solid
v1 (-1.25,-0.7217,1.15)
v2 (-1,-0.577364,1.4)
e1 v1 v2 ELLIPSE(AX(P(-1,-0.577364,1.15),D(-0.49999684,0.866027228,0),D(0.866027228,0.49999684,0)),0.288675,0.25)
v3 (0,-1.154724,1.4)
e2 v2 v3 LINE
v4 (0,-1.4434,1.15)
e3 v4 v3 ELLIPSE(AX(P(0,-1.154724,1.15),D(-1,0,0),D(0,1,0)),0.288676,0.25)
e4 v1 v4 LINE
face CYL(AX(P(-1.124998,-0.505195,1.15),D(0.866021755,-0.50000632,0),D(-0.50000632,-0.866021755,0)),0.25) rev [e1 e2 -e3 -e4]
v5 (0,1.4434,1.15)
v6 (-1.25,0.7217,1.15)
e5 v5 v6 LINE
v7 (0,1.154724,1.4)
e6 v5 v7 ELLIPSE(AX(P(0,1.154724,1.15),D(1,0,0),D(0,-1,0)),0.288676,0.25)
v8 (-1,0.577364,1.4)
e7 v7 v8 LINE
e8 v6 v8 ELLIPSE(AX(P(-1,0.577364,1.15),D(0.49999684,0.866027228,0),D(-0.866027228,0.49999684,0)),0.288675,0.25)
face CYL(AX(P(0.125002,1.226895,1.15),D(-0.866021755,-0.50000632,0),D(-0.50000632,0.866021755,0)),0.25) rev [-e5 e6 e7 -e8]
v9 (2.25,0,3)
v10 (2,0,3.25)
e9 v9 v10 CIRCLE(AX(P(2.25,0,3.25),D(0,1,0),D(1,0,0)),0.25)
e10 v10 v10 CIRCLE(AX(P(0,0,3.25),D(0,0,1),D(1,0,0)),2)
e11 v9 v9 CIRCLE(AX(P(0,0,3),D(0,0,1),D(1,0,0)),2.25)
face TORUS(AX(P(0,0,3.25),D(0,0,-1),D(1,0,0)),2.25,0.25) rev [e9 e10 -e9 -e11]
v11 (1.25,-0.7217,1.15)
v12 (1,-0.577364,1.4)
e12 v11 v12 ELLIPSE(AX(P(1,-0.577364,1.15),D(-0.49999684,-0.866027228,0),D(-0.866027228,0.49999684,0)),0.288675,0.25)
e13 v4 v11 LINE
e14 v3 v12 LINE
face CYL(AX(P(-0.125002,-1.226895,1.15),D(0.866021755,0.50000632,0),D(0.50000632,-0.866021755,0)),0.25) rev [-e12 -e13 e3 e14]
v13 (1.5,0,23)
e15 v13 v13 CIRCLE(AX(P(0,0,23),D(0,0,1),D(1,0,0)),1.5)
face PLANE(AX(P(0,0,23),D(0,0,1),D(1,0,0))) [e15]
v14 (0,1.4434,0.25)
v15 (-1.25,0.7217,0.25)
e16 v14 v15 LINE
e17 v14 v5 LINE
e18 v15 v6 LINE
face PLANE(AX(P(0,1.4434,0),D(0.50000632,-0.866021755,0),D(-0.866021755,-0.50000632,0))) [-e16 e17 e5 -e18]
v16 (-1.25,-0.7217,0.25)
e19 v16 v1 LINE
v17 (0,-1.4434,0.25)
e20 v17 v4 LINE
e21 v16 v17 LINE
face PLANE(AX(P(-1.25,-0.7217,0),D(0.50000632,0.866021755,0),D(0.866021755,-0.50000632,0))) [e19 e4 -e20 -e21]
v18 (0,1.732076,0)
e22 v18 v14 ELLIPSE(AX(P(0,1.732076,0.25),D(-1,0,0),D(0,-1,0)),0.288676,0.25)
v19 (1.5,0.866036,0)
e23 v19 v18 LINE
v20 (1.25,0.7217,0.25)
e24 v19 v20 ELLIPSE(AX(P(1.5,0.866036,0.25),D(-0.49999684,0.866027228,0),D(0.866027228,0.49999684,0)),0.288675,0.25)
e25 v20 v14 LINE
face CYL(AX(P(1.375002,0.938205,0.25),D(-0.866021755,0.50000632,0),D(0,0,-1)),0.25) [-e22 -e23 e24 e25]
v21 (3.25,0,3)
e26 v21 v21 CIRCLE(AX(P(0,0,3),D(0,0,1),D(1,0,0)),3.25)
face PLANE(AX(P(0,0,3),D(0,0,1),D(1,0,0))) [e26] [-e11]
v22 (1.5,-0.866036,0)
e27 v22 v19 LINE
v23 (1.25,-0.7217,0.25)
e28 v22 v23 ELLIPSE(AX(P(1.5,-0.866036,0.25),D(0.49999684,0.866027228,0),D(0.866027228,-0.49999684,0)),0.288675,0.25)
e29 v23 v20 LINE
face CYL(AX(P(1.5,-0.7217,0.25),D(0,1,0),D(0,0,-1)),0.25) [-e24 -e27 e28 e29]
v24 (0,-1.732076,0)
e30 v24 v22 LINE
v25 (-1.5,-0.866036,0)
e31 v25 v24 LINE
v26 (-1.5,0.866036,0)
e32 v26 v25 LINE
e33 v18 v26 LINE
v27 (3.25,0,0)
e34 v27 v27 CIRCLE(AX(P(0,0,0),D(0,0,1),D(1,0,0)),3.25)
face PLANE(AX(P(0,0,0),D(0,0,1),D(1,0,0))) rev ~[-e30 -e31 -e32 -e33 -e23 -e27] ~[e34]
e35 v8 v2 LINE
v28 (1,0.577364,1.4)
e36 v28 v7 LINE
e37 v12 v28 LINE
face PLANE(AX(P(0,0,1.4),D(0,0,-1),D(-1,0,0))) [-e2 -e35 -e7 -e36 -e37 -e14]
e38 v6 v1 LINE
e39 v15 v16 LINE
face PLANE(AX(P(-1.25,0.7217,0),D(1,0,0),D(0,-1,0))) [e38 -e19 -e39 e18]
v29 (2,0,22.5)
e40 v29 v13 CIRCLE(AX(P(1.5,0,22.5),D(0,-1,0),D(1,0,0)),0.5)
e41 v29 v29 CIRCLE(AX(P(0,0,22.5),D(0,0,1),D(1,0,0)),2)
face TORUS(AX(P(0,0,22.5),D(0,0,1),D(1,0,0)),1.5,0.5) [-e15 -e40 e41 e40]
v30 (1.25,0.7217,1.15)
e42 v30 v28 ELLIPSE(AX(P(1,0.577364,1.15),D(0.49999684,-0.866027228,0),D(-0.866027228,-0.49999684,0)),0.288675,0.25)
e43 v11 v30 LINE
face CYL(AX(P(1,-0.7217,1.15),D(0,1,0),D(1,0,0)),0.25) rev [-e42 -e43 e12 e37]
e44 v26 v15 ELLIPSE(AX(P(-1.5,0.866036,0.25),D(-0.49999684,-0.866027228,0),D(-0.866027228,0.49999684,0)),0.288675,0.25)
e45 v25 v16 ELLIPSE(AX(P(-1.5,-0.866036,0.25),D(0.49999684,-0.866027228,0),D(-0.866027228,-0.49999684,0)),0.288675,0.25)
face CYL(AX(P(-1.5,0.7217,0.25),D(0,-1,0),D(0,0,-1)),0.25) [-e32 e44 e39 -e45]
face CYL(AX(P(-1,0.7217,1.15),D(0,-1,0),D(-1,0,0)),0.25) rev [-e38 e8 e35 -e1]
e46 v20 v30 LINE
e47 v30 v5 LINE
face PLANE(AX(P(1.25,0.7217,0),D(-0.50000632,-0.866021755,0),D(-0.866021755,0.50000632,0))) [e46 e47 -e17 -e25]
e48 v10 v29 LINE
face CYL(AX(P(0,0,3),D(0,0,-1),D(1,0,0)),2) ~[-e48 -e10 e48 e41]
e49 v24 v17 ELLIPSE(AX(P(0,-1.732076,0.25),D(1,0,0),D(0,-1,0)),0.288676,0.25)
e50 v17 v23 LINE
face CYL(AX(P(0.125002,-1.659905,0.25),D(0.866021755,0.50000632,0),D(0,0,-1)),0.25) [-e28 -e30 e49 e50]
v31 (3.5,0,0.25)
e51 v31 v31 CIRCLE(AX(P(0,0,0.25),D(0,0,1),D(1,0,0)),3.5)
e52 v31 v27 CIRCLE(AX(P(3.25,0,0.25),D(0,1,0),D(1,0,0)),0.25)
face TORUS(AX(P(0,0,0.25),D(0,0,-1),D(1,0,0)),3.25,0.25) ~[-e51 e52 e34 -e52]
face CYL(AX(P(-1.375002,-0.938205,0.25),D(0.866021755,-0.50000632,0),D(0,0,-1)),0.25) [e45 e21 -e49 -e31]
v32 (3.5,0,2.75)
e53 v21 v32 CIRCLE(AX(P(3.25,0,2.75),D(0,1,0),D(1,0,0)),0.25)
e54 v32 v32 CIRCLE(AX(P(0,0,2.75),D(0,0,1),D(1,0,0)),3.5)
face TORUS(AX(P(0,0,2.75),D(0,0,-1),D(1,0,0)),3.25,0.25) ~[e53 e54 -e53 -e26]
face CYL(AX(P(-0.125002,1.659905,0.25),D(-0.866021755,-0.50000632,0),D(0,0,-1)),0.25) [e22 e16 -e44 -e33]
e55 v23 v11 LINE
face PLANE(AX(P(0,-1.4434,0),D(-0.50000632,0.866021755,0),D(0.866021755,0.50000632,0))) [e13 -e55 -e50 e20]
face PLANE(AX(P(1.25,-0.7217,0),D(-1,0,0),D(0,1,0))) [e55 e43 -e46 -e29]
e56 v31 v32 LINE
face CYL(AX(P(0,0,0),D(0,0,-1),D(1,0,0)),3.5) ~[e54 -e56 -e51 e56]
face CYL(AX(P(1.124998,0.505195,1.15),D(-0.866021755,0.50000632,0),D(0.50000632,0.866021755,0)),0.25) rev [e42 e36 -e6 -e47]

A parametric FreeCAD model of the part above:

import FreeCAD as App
import Part
import Sketcher
from FreeCAD import Vector
Q = App.Units.Quantity


def edges_at(feature, points):
    """Names of the edges that pass closest to the given points."""
    edges = feature.Shape.Edges
    near = lambda p: min(range(len(edges)), key=lambda i: edges[i].distToShape(Part.Vertex(*p))[0])
    return sorted({f"Edge{near(p) + 1}" for p in points})

doc = App.newDocument("Part")
body = doc.addObject("PartDesign::Body", "Body")

sketch1 = body.newObject("Sketcher::SketchObject", "Sketch")
sketch1.AttachmentSupport = (doc.getObject("XY_Plane"), [""])
sketch1.MapMode = "FlatFace"
sketch1.addGeometry(Part.Circle(Vector(0, 0, 0), Vector(0, 0, 1), 3.5), False)
sketch1.addConstraint([
    Sketcher.Constraint("Coincident", 0, 3, -1, 1),
    Sketcher.Constraint("Diameter", 0, 7.0),
])
pad1 = body.newObject("PartDesign::Pad", "Pad")
pad1.Profile = sketch1
pad1.Length = 3

sketch2 = body.newObject("Sketcher::SketchObject", "Sketch001")
sketch2.AttachmentSupport = (doc.getObject("XY_Plane"), [""])
sketch2.MapMode = "FlatFace"
sketch2.AttachmentOffset = App.Placement(Vector(0, 0, 3), App.Rotation())
sketch2.addGeometry(Part.Circle(Vector(0, 0, 0), Vector(0, 0, 1), 2), False)
sketch2.addConstraint([
    Sketcher.Constraint("Coincident", 0, 3, -1, 1),
    Sketcher.Constraint("Diameter", 0, 4.0),
])
pad2 = body.newObject("PartDesign::Pad", "Pad001")
pad2.Profile = sketch2
pad2.Length = 20
doc.recompute()

fillet = body.newObject("PartDesign::Fillet", "Fillet")
fillet.Base = (pad2, edges_at(pad2, [(-2, 0, 23)]))
fillet.Radius = 0.5
doc.recompute()

fillet2 = body.newObject("PartDesign::Fillet", "Fillet001")
fillet2.Base = (fillet, edges_at(fillet, [(-3.5, 0, 0), (-3.5, 0, 3)]))
fillet2.Radius = 0.25

sketch3 = body.newObject("Sketcher::SketchObject", "Sketch002")
sketch3.AttachmentSupport = (doc.getObject("XY_Plane"), [""])
sketch3.MapMode = "FlatFace"
sketch3.addGeometry([
    Part.LineSegment(Vector(-1.2, 0.7, 0), Vector(0, 1.4, 0)),
    Part.LineSegment(Vector(0, 1.4, 0), Vector(1.2, 0.7, 0)),
    Part.LineSegment(Vector(1.2, 0.7, 0), Vector(1.2, -0.7, 0)),
    Part.LineSegment(Vector(1.2, -0.7, 0), Vector(0, -1.4, 0)),
    Part.LineSegment(Vector(0, -1.4, 0), Vector(-1.2, -0.7, 0)),
    Part.LineSegment(Vector(-1.2, -0.7, 0), Vector(-1.2, 0.7, 0)),
], False)
sketch3.addConstraint([
    Sketcher.Constraint("Coincident", 0, 2, 1, 1),
    Sketcher.Constraint("Coincident", 1, 2, 2, 1),
    Sketcher.Constraint("Coincident", 2, 2, 3, 1),
    Sketcher.Constraint("Coincident", 3, 2, 4, 1),
    Sketcher.Constraint("Coincident", 4, 2, 5, 1),
    Sketcher.Constraint("Coincident", 5, 2, 0, 1),
    Sketcher.Constraint("Vertical", 2),
    Sketcher.Constraint("Vertical", 5),
    Sketcher.Constraint("Symmetric", 0, 2, 3, 2, -1, 1),
    Sketcher.Constraint("Symmetric", 1, 2, 4, 2, -1, 1),
    Sketcher.Constraint("PointOnObject", 0, 2, -2),
    Sketcher.Constraint("Parallel", 0, 3),
    Sketcher.Constraint("Horizontal", 2, 2, 4, 2),
    Sketcher.Constraint("DistanceX", 4, 2, 2, 2, 2.5),
    Sketcher.Constraint("Angle", 0, Q("30.0004 deg")),
    Sketcher.Constraint("DistanceY", 2, 2, 2, 1, 1.4434),
])
pocket1 = body.newObject("PartDesign::Pocket", "Pocket")
pocket1.Profile = sketch3
pocket1.Length = 1.4
pocket1.Reversed = True
doc.recompute()

fillet3 = body.newObject("PartDesign::Fillet", "Fillet002")
fillet3.Base = (pocket1, edges_at(pocket1, [
    (-0.625, 1.083, 0),
    (-1.25, 0, 0),
    (-0.625, -1.083, 0),
    (0.625, -1.083, 0),
    (1.25, 0, 0),
    (0.625, 1.083, 0),
    (-0.625, 1.083, 1.4),
    (0.625, 1.083, 1.4),
    (1.25, 0, 1.4),
    (0.625, -1.083, 1.4),
    (-0.625, -1.083, 1.4),
    (-1.25, 0, 1.4),
]))
fillet3.Radius = 0.25
doc.recompute()

fillet4 = body.newObject("PartDesign::Fillet", "Fillet003")
fillet4.Base = (fillet3, edges_at(fillet3, [(-2, 0, 3)]))
fillet4.Radius = 0.25

doc.recompute()
